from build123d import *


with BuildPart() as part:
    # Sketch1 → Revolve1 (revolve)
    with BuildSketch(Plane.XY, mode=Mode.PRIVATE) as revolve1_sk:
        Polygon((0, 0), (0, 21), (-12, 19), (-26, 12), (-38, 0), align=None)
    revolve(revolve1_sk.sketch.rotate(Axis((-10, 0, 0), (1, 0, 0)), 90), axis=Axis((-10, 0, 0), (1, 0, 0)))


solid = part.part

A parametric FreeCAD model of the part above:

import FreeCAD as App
import Part
import Sketcher
Q = App.Units.Quantity

doc = App.newDocument("Part")
body = doc.addObject("PartDesign::Body", "Body")

sketch1 = body.newObject("Sketcher::SketchObject", "Sketch")
sketch1.AttachmentSupport = (doc.getObject("XY_Plane"), [""])
sketch1.MapMode = "FlatFace"
sketch1.addGeometry([
    Part.LineSegment(App.Vector(0, 0, 0), App.Vector(0, 21, 0)),
    Part.LineSegment(App.Vector(0, 21, 0), App.Vector(-12, 19, 0)),
    Part.LineSegment(App.Vector(-12, 19, 0), App.Vector(-26, 12, 0)),
    Part.LineSegment(App.Vector(-26, 12, 0), App.Vector(-38, 0, 0)),
    Part.LineSegment(App.Vector(-38, 0, 0), App.Vector(0, 0, 0)),
], False)
sketch1.addConstraint([
    Sketcher.Constraint("Coincident", 0, 2, 1, 1),
    Sketcher.Constraint("Coincident", 1, 2, 2, 1),
    Sketcher.Constraint("Coincident", 2, 2, 3, 1),
    Sketcher.Constraint("Coincident", 3, 2, 4, 1),
    Sketcher.Constraint("Coincident", 4, 2, 0, 1),
    Sketcher.Constraint("Vertical", 0),
    Sketcher.Constraint("Horizontal", 4),
    Sketcher.Constraint("Coincident", 4, 2, -1, 1),
    Sketcher.Constraint("DistanceX", 4, 1, 4, 2, Q("38 mm")),
    Sketcher.Constraint("DistanceY", 0, 1, 0, 2, Q("21 mm")),
    Sketcher.Constraint("Angle", 3, Q("-135 deg")),
    Sketcher.Constraint("DistanceX", 1, 2, -1, 1, Q("12 mm")),
    Sketcher.Constraint("DistanceY", -1, 1, 1, 2, Q("19 mm")),
    Sketcher.Constraint("DistanceX", 2, 2, -1, 1, Q("26 mm")),
])
revolution = body.newObject("PartDesign::Revolution", "Revolution")
revolution.Profile = sketch1
revolution.ReferenceAxis = (sketch1, ["H_Axis"])
revolution.Angle = 360

doc.recompute()
